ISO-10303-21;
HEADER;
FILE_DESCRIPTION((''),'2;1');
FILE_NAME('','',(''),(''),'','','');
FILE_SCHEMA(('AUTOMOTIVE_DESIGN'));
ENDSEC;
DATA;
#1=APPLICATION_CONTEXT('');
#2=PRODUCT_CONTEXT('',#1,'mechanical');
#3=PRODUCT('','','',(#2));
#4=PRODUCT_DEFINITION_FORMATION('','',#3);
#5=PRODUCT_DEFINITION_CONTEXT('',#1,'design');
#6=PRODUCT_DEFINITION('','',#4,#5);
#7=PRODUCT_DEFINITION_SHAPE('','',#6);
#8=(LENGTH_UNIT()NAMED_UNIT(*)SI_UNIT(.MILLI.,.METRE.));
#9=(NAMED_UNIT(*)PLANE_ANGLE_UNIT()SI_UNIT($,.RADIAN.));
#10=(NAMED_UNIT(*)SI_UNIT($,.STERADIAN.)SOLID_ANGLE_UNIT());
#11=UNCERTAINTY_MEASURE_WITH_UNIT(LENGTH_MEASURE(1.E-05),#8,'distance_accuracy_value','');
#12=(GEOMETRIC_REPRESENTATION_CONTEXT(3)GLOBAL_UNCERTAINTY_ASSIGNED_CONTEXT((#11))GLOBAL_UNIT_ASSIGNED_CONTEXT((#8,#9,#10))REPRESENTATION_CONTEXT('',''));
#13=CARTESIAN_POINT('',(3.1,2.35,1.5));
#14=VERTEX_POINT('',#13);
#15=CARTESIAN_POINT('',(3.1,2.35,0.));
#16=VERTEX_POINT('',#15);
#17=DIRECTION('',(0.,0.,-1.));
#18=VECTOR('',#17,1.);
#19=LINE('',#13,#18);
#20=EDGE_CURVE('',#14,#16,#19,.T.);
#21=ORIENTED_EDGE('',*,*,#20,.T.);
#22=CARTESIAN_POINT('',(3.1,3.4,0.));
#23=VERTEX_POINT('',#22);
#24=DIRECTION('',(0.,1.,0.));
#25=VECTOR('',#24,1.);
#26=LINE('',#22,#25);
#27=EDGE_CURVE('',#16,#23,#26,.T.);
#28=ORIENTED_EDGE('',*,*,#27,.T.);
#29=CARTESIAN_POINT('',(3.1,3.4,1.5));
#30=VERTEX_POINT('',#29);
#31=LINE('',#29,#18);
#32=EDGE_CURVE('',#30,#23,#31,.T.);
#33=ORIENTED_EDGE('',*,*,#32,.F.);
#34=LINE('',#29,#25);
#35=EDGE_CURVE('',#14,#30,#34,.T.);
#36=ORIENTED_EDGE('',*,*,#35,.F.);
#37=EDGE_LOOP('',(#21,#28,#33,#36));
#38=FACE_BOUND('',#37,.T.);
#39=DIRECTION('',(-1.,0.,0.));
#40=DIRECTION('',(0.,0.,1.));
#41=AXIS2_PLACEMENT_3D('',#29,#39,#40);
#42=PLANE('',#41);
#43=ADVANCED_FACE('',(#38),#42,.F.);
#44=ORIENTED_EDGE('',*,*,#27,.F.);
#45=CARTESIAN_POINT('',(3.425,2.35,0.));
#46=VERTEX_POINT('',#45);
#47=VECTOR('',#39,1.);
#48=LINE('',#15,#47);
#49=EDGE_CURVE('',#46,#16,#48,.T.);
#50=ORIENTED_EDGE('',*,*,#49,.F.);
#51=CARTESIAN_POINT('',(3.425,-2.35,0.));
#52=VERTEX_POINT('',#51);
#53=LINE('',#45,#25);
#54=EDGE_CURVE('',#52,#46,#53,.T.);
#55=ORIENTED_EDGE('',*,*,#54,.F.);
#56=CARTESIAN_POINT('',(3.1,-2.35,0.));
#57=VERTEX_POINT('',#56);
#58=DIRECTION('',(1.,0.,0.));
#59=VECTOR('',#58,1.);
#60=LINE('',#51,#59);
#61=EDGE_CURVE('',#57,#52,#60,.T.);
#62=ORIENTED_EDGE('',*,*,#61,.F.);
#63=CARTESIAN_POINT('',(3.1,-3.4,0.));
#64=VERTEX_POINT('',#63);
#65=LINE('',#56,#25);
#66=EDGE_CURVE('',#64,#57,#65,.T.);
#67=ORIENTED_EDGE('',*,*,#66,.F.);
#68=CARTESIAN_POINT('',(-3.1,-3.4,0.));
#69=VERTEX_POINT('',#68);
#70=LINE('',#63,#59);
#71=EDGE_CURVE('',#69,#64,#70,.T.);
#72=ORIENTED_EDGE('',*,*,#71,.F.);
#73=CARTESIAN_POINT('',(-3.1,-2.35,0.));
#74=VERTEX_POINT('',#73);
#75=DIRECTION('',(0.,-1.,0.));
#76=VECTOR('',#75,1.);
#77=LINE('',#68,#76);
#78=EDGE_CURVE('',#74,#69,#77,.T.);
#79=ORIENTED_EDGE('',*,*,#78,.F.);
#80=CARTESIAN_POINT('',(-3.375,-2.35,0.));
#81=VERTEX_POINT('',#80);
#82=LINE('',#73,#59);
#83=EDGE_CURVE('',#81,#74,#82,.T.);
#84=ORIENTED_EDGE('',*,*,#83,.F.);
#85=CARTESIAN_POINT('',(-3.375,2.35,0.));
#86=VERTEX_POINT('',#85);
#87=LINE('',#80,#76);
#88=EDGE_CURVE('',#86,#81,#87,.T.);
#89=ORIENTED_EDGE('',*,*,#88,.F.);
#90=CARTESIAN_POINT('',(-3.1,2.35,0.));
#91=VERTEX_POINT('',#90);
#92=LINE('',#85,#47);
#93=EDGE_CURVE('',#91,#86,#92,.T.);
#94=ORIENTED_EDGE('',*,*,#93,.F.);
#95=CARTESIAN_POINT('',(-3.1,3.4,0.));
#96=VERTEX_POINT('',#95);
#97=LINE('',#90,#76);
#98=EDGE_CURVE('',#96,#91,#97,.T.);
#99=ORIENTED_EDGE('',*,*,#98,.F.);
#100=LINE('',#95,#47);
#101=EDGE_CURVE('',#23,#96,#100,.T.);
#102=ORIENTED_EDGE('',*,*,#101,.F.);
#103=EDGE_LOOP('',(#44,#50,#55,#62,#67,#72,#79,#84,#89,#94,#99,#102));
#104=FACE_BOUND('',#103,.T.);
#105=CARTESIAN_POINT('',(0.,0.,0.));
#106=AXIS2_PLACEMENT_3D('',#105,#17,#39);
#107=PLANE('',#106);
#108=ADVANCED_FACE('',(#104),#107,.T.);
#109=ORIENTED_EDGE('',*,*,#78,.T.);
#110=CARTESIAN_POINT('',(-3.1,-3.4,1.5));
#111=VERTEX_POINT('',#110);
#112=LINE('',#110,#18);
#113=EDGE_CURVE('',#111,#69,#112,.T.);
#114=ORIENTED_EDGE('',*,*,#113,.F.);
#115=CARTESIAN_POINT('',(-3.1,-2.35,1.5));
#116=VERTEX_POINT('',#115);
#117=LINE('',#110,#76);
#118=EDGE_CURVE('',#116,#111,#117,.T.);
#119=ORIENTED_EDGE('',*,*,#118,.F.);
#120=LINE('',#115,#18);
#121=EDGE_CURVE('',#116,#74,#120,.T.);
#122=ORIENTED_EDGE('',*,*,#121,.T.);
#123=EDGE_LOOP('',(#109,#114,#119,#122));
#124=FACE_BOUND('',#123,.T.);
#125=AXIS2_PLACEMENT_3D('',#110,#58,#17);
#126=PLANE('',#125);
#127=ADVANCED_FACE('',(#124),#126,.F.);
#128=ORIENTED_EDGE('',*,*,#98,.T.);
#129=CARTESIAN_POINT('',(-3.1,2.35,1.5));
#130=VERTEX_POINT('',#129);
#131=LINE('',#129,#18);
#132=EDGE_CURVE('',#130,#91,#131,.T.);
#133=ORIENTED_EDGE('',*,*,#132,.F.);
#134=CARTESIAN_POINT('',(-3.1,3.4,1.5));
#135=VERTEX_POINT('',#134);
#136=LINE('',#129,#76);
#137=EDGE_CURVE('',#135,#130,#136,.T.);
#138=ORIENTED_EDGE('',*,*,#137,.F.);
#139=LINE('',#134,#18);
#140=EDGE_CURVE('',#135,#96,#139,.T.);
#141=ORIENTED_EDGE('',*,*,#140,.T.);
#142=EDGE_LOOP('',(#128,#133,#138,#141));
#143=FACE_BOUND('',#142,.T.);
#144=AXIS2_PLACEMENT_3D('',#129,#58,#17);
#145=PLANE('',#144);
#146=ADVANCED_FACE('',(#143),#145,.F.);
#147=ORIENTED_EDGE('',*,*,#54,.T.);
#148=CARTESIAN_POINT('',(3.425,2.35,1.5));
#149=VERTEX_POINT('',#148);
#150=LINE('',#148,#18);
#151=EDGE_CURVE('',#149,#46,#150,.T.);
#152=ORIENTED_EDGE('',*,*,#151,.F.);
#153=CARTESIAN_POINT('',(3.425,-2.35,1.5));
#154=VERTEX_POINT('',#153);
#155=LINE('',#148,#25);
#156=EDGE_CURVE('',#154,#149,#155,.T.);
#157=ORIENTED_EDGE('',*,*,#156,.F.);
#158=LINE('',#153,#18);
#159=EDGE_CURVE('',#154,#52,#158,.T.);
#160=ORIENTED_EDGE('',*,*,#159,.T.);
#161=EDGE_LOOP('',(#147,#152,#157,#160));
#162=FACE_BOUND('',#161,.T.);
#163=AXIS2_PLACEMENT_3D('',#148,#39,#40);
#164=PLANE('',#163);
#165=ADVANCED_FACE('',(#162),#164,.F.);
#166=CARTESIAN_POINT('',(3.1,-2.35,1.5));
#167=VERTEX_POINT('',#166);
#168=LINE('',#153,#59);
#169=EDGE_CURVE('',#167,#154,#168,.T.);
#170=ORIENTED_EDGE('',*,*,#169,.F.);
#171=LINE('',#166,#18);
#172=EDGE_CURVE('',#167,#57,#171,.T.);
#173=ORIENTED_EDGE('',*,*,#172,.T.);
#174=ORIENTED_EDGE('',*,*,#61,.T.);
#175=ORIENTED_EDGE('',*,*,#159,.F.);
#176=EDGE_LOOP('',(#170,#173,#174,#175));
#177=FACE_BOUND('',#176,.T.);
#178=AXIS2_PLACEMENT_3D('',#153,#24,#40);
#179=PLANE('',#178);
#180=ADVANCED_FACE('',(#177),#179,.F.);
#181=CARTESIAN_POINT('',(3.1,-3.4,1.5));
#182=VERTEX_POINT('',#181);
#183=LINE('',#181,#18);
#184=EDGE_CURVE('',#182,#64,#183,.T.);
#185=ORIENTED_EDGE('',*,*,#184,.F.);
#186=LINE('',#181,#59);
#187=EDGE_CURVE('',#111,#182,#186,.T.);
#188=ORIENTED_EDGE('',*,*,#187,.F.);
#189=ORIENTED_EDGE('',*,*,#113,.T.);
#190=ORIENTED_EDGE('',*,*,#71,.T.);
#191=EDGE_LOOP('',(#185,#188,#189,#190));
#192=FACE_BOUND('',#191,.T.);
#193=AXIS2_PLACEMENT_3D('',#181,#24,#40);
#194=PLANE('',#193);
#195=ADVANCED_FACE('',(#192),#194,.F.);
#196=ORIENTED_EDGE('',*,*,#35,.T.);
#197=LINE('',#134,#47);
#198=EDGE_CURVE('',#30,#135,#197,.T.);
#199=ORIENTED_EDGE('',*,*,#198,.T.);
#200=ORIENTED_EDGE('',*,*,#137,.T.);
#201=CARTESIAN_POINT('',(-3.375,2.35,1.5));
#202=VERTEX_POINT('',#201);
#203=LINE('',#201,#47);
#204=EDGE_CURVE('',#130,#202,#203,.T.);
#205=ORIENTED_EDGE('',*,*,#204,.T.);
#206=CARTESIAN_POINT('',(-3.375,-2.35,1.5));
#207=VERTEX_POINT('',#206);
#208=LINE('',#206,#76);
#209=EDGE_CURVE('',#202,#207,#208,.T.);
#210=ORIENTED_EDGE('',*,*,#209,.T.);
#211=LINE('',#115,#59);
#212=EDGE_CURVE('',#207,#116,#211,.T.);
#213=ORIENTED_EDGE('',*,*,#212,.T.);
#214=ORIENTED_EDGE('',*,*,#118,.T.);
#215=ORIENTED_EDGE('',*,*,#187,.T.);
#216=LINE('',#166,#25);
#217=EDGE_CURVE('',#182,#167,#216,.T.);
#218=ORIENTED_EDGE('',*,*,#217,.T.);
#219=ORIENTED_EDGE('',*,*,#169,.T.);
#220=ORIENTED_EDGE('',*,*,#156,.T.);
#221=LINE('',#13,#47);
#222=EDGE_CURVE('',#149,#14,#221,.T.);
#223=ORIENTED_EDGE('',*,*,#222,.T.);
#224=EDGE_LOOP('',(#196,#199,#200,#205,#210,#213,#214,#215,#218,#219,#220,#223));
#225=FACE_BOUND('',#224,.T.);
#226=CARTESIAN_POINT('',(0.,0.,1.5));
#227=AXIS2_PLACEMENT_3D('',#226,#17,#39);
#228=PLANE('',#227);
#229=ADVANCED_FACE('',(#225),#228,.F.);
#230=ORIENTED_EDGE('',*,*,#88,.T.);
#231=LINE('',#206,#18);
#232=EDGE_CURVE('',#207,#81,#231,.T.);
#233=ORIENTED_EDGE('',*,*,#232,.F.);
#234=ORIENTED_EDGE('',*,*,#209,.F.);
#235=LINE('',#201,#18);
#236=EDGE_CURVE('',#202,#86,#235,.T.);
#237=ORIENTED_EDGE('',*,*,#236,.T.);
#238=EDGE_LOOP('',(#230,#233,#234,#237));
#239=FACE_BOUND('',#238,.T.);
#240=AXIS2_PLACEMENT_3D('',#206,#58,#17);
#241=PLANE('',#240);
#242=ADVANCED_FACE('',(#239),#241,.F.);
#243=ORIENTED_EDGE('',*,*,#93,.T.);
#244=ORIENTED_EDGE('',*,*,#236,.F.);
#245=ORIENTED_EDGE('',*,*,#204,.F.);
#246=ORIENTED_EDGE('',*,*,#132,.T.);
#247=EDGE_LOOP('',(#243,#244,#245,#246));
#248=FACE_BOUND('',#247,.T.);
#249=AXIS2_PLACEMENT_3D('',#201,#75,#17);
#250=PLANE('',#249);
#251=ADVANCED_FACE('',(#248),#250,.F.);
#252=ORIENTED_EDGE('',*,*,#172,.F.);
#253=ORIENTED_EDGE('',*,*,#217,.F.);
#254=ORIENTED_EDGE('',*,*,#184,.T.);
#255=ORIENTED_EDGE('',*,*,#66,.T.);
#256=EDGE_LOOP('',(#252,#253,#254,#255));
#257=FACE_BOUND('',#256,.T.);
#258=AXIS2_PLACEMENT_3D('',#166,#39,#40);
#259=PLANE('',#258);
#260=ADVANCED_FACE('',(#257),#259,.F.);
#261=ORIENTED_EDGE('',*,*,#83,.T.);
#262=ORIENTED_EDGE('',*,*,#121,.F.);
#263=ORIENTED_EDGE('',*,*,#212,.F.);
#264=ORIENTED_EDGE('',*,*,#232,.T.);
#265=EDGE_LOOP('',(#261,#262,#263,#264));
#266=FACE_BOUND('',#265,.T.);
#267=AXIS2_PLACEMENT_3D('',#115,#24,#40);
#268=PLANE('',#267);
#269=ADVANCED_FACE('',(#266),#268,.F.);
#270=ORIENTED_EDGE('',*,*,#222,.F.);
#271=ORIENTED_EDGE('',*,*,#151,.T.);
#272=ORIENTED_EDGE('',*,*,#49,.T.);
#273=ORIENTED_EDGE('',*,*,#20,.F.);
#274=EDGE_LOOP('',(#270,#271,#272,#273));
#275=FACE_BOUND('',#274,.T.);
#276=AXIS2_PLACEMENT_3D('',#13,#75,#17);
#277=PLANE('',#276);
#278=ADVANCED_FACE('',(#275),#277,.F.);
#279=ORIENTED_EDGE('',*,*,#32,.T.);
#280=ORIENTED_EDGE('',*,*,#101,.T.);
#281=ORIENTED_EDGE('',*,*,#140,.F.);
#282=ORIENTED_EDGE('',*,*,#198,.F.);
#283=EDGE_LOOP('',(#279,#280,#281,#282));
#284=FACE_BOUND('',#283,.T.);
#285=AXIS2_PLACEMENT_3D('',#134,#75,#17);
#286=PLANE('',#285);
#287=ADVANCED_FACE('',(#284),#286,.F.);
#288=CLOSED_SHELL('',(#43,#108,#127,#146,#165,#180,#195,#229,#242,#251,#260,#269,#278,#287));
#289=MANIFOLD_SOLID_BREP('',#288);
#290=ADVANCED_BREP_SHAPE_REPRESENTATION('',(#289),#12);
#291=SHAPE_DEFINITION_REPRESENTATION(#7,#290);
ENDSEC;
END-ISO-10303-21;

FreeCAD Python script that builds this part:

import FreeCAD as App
import Part
import Sketcher


def add_polygon(sketch, points):
    """Adds a closed chain of lines whose ends are joined by coincident constraints."""
    first, n = sketch.GeometryCount, len(points)
    for a, b in zip(points, points[1:] + points[:1]):
        sketch.addGeometry(Part.LineSegment(App.Vector(*a, 0), App.Vector(*b, 0)), False)
    for i in range(n):
        sketch.addConstraint(Sketcher.Constraint("Coincident", first + i, 2, first + (i + 1) % n, 1))

doc = App.newDocument("Part")
params = doc.addObject("Spreadsheet::Sheet", "Params")
for row, (alias, value) in enumerate([
    ("sketch1_width", "6.2 mm"),
    ("sketch1_height", "4.7 mm"),
    ("sketch1_height2", "1.05 mm"),
    ("pad1_length", "1.5 mm"),
], start=1):
    params.set(f"A{row}", alias)
    params.set(f"B{row}", "=" + value)
    params.setAlias(f"B{row}", alias)

body = doc.addObject("PartDesign::Body", "Body")

# Sketch on XY plane
sketch1 = doc.addObject("Sketcher::SketchObject", "Sketch")
body.addObject(sketch1)
sketch1.AttachmentSupport = (doc.XY_Plane, [""])
sketch1.MapMode = "FlatFace"
add_polygon(sketch1, [(3.1, 2.35), (3.1, 3.4), (-3.1, 3.4), (-3.1, 2.35), (-3.38, 2.35), (-3.38, -2.35), (-3.1, -2.35), (-3.1, -3.4), (3.1, -3.4), (3.1, -2.35), (3.42, -2.35), (3.42, 2.35)])  # lines 0-11
sketch1.addConstraint([
    Sketcher.Constraint("Vertical", 0),
    Sketcher.Constraint("Horizontal", 1),
    Sketcher.Constraint("Vertical", 2),
    Sketcher.Constraint("Horizontal", 3),
    Sketcher.Constraint("Vertical", 4),
    Sketcher.Constraint("Horizontal", 5),
    Sketcher.Constraint("Vertical", 6),
    Sketcher.Constraint("Horizontal", 7),
    Sketcher.Constraint("Vertical", 8),
    Sketcher.Constraint("Horizontal", 9),
    Sketcher.Constraint("Vertical", 10),
    Sketcher.Constraint("Horizontal", 11),
    Sketcher.Constraint("Symmetric", 0, 2, 6, 2, -1, 1),
    Sketcher.Constraint("Symmetric", 2, 2, 8, 2, -1, 1),
    Sketcher.Constraint("Symmetric", 5, 2, 8, 2, -2),
    Sketcher.Constraint("Horizontal", 3, 2, 10, 2),
    Sketcher.Constraint("DistanceX", 1, 2, 1, 1, 6.2),
    Sketcher.Constraint("DistanceY", 4, 2, 4, 1, 4.7),
    Sketcher.Constraint("DistanceY", 0, 1, 0, 2, 1.05),
    Sketcher.Constraint("DistanceX", 3, 2, 3, 1, 0.275),
    Sketcher.Constraint("DistanceX", 9, 1, 9, 2, 0.325),
])
sketch1.setExpression("Constraints[28]", "Params.sketch1_width")
sketch1.setExpression("Constraints[29]", "Params.sketch1_height")
sketch1.setExpression("Constraints[30]", "Params.sketch1_height2")
pad1 = doc.addObject("PartDesign::Pad", "Pad")
body.addObject(pad1)
pad1.Profile = sketch1
pad1.setExpression("Length", "Params.pad1_length")

doc.recompute()
